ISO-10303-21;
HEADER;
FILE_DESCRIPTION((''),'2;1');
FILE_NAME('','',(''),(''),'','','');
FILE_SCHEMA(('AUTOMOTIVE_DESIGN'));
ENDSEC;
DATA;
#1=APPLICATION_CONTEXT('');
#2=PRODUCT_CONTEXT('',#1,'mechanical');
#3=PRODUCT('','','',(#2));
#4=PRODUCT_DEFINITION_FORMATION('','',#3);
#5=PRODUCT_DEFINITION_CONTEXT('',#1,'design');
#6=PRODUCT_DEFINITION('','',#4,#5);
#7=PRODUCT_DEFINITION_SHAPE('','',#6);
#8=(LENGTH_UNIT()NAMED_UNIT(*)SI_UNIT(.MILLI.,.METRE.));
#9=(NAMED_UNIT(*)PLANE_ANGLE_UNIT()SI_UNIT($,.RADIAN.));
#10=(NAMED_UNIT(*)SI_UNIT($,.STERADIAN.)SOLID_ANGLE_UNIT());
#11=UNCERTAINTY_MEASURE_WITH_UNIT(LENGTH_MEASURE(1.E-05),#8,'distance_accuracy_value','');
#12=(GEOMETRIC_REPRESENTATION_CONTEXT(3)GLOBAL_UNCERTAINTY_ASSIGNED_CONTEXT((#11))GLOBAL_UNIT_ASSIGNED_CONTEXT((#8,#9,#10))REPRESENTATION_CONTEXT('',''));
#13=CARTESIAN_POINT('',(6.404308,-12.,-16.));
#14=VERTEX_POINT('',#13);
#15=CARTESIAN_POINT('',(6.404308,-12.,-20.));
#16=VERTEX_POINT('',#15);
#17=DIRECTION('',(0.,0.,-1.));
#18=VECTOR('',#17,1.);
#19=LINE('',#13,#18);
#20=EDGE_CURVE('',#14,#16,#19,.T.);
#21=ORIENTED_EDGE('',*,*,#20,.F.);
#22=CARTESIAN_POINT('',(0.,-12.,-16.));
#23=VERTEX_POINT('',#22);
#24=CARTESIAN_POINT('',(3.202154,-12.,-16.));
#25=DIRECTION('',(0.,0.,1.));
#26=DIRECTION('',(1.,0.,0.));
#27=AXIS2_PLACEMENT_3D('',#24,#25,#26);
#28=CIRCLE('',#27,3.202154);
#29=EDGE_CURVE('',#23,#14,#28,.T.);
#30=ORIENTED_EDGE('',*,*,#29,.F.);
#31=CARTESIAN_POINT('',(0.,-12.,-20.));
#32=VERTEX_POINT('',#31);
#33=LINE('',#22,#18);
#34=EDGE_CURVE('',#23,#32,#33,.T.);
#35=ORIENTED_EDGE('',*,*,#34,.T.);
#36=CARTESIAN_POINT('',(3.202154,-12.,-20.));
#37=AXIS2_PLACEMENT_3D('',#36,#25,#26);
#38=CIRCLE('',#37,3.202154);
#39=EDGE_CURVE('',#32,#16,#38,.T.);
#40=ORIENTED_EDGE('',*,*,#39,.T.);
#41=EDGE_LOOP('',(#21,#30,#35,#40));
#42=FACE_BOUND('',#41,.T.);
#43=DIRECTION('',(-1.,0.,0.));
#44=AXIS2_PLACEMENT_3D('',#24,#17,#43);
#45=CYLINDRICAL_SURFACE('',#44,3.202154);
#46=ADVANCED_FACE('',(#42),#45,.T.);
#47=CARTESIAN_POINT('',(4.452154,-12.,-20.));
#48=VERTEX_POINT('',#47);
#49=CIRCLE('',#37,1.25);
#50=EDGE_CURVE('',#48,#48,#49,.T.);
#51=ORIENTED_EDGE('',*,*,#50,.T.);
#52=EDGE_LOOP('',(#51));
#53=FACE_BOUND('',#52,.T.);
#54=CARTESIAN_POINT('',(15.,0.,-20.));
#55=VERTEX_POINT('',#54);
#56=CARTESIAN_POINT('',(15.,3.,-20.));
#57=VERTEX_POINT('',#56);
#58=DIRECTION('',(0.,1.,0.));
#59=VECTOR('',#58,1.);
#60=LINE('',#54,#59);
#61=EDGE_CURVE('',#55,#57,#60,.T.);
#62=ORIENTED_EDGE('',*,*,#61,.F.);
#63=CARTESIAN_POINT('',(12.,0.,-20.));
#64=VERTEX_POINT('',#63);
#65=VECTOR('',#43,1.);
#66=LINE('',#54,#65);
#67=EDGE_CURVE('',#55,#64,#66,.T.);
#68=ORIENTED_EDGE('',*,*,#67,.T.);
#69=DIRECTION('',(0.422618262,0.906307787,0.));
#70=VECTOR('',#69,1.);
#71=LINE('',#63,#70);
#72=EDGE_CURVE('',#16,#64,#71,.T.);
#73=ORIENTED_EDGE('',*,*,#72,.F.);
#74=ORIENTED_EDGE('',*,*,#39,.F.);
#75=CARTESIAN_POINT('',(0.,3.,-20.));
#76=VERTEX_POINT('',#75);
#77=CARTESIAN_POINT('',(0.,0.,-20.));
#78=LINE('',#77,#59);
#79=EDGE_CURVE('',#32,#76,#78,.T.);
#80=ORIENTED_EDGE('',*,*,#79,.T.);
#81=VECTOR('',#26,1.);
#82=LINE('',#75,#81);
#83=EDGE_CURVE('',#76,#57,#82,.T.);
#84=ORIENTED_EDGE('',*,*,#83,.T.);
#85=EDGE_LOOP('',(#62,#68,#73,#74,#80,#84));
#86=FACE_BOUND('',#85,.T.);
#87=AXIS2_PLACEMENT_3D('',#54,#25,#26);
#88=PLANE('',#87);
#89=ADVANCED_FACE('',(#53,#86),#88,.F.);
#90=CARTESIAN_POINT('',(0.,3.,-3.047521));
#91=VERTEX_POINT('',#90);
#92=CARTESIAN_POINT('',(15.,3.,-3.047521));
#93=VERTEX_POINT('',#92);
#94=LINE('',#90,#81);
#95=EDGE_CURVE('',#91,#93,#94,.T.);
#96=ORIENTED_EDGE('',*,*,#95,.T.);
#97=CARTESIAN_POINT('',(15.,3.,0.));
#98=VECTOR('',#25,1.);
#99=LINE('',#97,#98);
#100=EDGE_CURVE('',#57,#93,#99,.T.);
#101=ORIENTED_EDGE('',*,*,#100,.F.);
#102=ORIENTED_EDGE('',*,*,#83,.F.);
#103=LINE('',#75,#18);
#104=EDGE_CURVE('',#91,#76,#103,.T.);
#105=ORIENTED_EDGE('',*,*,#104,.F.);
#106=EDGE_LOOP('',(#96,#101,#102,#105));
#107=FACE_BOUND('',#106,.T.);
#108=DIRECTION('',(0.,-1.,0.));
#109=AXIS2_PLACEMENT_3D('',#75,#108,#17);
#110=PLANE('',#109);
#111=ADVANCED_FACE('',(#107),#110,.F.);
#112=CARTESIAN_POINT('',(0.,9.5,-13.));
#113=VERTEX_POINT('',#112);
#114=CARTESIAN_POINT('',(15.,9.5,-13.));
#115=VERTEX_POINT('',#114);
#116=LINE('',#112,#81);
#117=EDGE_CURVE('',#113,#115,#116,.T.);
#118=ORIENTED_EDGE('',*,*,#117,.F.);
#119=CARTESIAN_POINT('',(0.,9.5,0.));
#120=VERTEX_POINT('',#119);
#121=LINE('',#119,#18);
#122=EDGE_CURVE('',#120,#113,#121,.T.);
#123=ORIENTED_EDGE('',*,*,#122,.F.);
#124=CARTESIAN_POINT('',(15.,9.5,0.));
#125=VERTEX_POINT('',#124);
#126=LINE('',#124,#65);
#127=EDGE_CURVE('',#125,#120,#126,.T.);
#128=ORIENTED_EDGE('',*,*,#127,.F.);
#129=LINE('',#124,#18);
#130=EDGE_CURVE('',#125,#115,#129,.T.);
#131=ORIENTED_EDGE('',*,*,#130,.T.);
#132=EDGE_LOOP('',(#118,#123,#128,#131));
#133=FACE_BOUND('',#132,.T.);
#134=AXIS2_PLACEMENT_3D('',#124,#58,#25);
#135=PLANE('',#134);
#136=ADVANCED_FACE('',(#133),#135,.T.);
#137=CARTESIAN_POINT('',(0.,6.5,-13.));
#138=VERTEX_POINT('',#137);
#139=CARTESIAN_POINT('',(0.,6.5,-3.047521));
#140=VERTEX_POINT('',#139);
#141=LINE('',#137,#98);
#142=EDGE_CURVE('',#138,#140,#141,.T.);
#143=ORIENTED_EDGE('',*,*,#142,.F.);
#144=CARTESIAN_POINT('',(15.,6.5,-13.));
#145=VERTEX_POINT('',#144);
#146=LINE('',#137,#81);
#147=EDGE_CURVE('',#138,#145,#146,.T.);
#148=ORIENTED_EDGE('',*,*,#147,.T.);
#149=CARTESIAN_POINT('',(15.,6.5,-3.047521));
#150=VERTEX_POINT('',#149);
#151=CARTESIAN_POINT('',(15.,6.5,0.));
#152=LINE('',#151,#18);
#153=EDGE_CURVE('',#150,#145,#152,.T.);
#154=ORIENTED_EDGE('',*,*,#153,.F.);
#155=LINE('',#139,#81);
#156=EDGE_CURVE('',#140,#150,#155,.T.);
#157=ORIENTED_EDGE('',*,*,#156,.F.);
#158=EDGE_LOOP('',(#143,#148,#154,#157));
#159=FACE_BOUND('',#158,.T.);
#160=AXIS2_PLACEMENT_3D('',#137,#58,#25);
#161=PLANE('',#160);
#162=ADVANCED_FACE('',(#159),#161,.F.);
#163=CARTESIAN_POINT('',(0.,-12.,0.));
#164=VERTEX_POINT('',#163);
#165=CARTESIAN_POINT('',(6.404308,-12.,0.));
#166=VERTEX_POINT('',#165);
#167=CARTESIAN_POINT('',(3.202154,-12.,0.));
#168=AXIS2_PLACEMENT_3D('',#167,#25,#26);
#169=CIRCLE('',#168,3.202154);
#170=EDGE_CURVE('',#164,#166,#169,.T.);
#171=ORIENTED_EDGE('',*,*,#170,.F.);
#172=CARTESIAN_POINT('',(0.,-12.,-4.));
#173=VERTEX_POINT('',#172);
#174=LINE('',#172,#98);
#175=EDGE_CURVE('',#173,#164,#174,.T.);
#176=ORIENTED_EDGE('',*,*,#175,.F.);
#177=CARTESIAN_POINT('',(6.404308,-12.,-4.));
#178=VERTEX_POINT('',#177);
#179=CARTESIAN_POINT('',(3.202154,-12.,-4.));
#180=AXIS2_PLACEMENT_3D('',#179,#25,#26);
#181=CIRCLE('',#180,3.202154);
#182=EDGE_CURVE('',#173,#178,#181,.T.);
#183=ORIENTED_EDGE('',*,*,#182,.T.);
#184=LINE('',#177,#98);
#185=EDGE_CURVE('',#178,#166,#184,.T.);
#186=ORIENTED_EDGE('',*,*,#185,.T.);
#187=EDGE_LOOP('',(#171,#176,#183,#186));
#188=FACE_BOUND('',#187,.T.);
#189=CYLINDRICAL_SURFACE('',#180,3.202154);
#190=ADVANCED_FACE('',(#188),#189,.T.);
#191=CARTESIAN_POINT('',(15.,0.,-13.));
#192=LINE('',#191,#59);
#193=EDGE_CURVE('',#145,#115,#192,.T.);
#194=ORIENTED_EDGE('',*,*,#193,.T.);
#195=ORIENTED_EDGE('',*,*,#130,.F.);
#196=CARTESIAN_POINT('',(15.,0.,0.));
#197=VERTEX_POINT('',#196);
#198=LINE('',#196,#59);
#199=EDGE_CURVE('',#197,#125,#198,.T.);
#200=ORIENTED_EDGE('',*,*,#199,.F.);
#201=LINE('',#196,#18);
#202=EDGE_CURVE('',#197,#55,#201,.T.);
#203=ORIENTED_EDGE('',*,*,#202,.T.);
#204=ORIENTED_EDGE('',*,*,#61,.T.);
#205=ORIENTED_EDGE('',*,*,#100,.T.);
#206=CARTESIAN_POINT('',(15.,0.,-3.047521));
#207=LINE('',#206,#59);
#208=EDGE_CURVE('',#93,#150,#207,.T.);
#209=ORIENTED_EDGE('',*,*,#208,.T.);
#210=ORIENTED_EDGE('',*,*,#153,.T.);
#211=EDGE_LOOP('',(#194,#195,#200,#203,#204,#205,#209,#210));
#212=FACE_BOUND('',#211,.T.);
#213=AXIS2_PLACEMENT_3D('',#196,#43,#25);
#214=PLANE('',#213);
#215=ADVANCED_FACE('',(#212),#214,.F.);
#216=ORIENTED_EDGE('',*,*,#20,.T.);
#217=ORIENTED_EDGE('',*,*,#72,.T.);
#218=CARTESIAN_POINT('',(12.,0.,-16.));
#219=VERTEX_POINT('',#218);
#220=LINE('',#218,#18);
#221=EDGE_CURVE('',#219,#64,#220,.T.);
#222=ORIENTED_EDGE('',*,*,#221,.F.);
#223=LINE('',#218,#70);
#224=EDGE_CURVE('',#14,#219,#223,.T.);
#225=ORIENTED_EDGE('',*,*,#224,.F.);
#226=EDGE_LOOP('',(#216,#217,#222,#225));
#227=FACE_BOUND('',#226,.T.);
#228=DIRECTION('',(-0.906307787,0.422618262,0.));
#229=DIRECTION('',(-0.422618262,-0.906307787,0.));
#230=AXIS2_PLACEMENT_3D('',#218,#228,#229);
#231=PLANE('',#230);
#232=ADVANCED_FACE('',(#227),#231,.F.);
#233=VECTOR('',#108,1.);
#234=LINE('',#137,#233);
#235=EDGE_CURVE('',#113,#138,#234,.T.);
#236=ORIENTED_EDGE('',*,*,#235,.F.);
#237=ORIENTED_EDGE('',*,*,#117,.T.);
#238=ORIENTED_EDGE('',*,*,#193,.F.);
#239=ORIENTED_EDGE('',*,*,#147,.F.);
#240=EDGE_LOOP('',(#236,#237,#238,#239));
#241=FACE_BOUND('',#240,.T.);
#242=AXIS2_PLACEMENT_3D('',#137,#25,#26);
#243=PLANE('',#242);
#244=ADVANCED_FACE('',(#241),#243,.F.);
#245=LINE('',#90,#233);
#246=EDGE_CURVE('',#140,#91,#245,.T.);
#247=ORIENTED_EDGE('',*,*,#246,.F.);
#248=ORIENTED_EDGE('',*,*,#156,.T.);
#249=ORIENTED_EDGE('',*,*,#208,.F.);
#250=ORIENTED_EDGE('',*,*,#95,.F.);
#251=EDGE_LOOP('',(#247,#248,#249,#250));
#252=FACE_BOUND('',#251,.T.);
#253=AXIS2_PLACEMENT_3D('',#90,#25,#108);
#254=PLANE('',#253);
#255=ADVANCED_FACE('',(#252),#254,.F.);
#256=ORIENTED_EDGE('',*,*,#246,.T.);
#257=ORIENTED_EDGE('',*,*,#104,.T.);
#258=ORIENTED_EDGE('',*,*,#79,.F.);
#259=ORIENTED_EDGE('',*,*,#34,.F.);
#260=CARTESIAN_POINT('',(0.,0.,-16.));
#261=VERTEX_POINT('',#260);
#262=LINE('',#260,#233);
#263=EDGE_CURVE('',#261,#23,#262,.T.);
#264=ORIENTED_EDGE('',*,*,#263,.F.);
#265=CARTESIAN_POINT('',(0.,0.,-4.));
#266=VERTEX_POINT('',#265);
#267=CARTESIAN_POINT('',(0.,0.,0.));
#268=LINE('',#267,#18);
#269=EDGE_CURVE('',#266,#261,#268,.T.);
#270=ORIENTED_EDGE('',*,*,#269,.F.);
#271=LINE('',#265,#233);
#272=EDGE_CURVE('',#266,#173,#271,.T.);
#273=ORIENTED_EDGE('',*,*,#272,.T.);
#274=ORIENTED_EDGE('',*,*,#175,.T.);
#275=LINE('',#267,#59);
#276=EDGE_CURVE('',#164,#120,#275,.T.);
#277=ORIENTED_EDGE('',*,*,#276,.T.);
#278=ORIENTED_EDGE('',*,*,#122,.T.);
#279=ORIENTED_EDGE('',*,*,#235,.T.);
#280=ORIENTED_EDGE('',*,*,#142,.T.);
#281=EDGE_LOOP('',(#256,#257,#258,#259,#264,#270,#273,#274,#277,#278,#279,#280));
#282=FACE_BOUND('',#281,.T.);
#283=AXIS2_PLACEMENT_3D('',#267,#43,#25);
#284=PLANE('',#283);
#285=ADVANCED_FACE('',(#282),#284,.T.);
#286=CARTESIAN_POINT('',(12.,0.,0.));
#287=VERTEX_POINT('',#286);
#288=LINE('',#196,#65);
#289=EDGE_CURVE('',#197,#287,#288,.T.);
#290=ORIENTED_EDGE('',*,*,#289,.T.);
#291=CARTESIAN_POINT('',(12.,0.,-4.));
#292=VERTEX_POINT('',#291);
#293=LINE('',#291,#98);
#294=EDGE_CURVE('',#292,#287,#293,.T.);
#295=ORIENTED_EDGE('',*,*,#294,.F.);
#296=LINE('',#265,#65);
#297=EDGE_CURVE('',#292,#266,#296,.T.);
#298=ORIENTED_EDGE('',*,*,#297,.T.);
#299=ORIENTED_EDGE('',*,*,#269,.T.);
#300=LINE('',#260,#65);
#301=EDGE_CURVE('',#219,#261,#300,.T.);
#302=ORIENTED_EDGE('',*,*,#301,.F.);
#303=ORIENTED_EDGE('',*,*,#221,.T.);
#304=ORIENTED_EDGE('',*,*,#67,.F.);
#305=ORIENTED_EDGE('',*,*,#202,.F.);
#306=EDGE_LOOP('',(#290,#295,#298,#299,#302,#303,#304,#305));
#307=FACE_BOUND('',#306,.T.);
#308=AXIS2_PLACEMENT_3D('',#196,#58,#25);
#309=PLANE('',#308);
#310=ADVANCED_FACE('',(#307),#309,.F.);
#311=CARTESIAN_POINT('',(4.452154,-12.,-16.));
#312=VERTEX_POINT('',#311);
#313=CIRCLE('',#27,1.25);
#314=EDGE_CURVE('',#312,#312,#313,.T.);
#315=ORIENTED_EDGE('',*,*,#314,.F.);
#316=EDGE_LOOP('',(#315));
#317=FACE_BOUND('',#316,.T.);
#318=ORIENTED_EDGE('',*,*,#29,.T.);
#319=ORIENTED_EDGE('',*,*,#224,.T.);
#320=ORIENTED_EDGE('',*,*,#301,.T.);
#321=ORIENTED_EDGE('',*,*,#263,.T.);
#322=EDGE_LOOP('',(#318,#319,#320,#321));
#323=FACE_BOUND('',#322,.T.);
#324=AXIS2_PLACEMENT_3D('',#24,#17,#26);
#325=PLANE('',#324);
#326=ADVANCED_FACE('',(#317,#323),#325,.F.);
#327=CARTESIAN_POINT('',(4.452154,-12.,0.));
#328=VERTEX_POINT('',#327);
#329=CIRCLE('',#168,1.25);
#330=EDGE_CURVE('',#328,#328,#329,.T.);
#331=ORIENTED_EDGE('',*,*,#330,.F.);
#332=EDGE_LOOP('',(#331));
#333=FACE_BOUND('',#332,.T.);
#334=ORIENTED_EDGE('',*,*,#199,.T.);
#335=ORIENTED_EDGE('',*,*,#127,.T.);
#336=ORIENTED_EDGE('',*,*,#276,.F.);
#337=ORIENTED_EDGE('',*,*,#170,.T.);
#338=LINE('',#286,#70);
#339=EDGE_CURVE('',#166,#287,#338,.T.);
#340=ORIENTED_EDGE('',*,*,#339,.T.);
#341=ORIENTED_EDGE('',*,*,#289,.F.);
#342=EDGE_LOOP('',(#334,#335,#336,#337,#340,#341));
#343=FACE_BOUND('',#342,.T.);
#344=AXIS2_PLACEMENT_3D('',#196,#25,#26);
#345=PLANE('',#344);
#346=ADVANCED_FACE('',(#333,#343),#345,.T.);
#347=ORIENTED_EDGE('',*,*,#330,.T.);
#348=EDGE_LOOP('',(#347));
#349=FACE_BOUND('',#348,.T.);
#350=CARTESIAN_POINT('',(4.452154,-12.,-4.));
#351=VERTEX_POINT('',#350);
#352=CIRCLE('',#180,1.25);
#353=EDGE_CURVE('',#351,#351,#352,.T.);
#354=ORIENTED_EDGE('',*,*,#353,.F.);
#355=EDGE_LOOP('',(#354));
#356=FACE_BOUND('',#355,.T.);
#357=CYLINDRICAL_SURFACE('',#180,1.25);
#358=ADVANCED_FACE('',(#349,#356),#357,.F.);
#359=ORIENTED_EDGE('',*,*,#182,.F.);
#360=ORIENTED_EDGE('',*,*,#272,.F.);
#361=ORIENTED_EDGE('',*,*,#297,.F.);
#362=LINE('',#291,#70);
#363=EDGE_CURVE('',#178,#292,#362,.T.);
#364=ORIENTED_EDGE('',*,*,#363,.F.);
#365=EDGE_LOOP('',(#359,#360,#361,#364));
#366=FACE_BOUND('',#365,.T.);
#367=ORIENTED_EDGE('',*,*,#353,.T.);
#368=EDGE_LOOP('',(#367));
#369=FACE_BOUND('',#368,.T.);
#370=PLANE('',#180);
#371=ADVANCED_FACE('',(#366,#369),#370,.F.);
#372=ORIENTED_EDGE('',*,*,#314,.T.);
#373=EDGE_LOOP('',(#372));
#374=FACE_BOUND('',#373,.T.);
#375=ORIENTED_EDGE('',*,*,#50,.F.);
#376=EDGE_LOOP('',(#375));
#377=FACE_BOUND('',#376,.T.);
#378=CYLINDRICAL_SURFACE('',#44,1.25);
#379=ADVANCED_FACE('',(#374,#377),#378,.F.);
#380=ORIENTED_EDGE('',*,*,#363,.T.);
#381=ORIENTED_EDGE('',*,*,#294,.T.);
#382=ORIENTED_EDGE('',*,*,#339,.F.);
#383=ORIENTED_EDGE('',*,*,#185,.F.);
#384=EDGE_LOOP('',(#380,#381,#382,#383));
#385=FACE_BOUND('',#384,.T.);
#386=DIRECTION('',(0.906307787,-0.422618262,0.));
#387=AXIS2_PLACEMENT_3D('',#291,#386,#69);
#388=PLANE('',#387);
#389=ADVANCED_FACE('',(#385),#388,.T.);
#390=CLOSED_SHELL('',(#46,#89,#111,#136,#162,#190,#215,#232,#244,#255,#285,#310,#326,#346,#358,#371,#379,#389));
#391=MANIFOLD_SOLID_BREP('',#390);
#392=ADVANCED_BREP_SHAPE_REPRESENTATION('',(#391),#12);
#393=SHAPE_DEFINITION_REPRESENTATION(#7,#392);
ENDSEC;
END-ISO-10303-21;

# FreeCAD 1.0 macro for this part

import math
import FreeCAD as App
import Part
import Sketcher
from FreeCAD import Vector
Q = App.Units.Quantity

doc = App.newDocument("Part")
body = doc.addObject("PartDesign::Body", "Body")

# Sketch on YZ plane
sketch1 = body.newObject("Sketcher::SketchObject", "Sketch")
sketch1.AttachmentSupport = (doc.getObject("YZ_Plane"), [""])
sketch1.MapMode = "FlatFace"
sketch1.addGeometry(Part.LineSegment(Vector(10, 0, 0), Vector(0, 0, 0)), False)
sketch1.addGeometry(Part.LineSegment(Vector(0, 0, 0), Vector(0, -20, 0)), False)
sketch1.addGeometry(Part.LineSegment(Vector(0, -20, 0), Vector(10, -20, 0)), False)
sketch1.addGeometry(Part.LineSegment(Vector(10, -20, 0), Vector(10, 0, 0)), False)
sketch1.addConstraint(Sketcher.Constraint("Coincident", 0, 2, 1, 1))
sketch1.addConstraint(Sketcher.Constraint("Coincident", 1, 2, 2, 1))
sketch1.addConstraint(Sketcher.Constraint("Coincident", 2, 2, 3, 1))
sketch1.addConstraint(Sketcher.Constraint("Coincident", 3, 2, 0, 1))
sketch1.addConstraint(Sketcher.Constraint("Horizontal", 0))
sketch1.addConstraint(Sketcher.Constraint("Vertical", 1))
sketch1.addConstraint(Sketcher.Constraint("Horizontal", 2))
sketch1.addConstraint(Sketcher.Constraint("Vertical", 3))
sketch1.addConstraint(Sketcher.Constraint("Coincident", 0, 2, -1, 1))
sketch1.addConstraint(Sketcher.Constraint("DistanceY", 1, 2, 1, 1, 20.0))
sketch1.addConstraint(Sketcher.Constraint("DistanceX", 0, 2, 0, 1, 9.5))
pad1 = body.newObject("PartDesign::Pad", "Pad")
pad1.Profile = sketch1
pad1.Length = 15

# Sketch on YZ plane
sketch2 = body.newObject("Sketcher::SketchObject", "Sketch001")
sketch2.AttachmentSupport = (doc.getObject("YZ_Plane"), [""])
sketch2.MapMode = "FlatFace"
sketch2.AttachmentOffset = App.Placement(Vector(0, 0, 15), App.Rotation())
sketch2.addGeometry(Part.LineSegment(Vector(3, -3, 0), Vector(3, -20, 0)), False)
sketch2.addGeometry(Part.LineSegment(Vector(3, -20, 0), Vector(9.5, -20, 0)), False)
sketch2.addGeometry(Part.LineSegment(Vector(9.5, -20, 0), Vector(9.5, -13, 0)), False)
sketch2.addGeometry(Part.LineSegment(Vector(9.5, -13, 0), Vector(6.5, -13, 0)), False)
sketch2.addGeometry(Part.LineSegment(Vector(6.5, -13, 0), Vector(6.5, -3, 0)), False)
sketch2.addGeometry(Part.LineSegment(Vector(6.5, -3, 0), Vector(3, -3, 0)), False)
sketch2.addConstraint(Sketcher.Constraint("Coincident", 0, 2, 1, 1))
sketch2.addConstraint(Sketcher.Constraint("Coincident", 1, 2, 2, 1))
sketch2.addConstraint(Sketcher.Constraint("Coincident", 2, 2, 3, 1))
sketch2.addConstraint(Sketcher.Constraint("Coincident", 3, 2, 4, 1))
sketch2.addConstraint(Sketcher.Constraint("Coincident", 4, 2, 5, 1))
sketch2.addConstraint(Sketcher.Constraint("Coincident", 5, 2, 0, 1))
sketch2.addConstraint(Sketcher.Constraint("Vertical", 0))
sketch2.addConstraint(Sketcher.Constraint("Horizontal", 1))
sketch2.addConstraint(Sketcher.Constraint("Vertical", 2))
sketch2.addConstraint(Sketcher.Constraint("Horizontal", 3))
sketch2.addConstraint(Sketcher.Constraint("Vertical", 4))
sketch2.addConstraint(Sketcher.Constraint("Horizontal", 5))
sketch2.addConstraint(Sketcher.Constraint("DistanceX", 3, 2, 3, 1, 3.0))
sketch2.addConstraint(Sketcher.Constraint("DistanceY", 2, 1, 2, 2, 7.0))
sketch2.addConstraint(Sketcher.Constraint("DistanceX", 1, 1, 1, 2, 6.5))
sketch2.addConstraint(Sketcher.Constraint("DistanceX", -1, 1, 0, 2, 3.0))
sketch2.addConstraint(Sketcher.Constraint("DistanceY", 0, 2, -1, 1, 20.0))
sketch2.addConstraint(Sketcher.Constraint("DistanceY", 0, 2, 0, 1, 16.952479))
pocket1 = body.newObject("PartDesign::Pocket", "Pocket")
pocket1.Profile = sketch2
pocket1.Type = "ThroughAll"
pocket1.Midplane = True

# Sketch on XY plane
sketch3 = body.newObject("Sketcher::SketchObject", "Sketch002")
sketch3.AttachmentSupport = (doc.getObject("XY_Plane"), [""])
sketch3.MapMode = "FlatFace"
sketch3.addGeometry(Part.LineSegment(Vector(0, 0, 0), Vector(0, -12, 0)), False)
sketch3.addGeometry(Part.ArcOfCircle(Part.Circle(Vector(3.2, -12, 0), Vector(0, 0, 1), 3.2), math.radians(180), math.radians(360)), False)
sketch3.addGeometry(Part.LineSegment(Vector(6.4, -12, 0), Vector(12, 0, 0)), False)
sketch3.addGeometry(Part.LineSegment(Vector(12, 0, 0), Vector(0, 0, 0)), False)
sketch3.addGeometry(Part.Circle(Vector(3.2, -12, 0), Vector(0, 0, 1), 1.2), False)
sketch3.addConstraint(Sketcher.Constraint("Tangent", 0, 2, 1, 1))
sketch3.addConstraint(Sketcher.Constraint("Coincident", 1, 2, 2, 1))
sketch3.addConstraint(Sketcher.Constraint("Coincident", 2, 2, 3, 1))
sketch3.addConstraint(Sketcher.Constraint("Coincident", 3, 2, 0, 1))
sketch3.addConstraint(Sketcher.Constraint("Vertical", 0))
sketch3.addConstraint(Sketcher.Constraint("Horizontal", 3))
sketch3.addConstraint(Sketcher.Constraint("Coincident", 3, 2, -1, 1))
sketch3.addConstraint(Sketcher.Constraint("Coincident", 4, 3, 1, 3))
sketch3.addConstraint(Sketcher.Constraint("Horizontal", 0, 2, 1, 2))
sketch3.addConstraint(Sketcher.Constraint("Equal", 3, 0))
sketch3.addConstraint(Sketcher.Constraint("Diameter", 4, 2.5))
sketch3.addConstraint(Sketcher.Constraint("DistanceX", 3, 2, 3, 1, 12.0))
sketch3.addConstraint(Sketcher.Constraint("Angle", 2, Q("65 deg")))
pad2 = body.newObject("PartDesign::Pad", "Pad001")
pad2.Profile = sketch3
pad2.Length = 4
pad2.Reversed = True
doc.recompute()

datumplane = body.newObject("PartDesign::Plane", "DatumPlane")
datumplane.AttachmentSupport = (doc.getObject("XY_Plane"), [""])
datumplane.MapMode = "FlatFace"
datumplane.AttachmentOffset = App.Placement(Vector(0, 0, -10), App.Rotation())
mirrored = body.newObject("PartDesign::Mirrored", "Mirrored")
mirrored.Originals = [pad2]
mirrored.MirrorPlane = (datumplane, [""])
body.Tip = mirrored

doc.recompute()
